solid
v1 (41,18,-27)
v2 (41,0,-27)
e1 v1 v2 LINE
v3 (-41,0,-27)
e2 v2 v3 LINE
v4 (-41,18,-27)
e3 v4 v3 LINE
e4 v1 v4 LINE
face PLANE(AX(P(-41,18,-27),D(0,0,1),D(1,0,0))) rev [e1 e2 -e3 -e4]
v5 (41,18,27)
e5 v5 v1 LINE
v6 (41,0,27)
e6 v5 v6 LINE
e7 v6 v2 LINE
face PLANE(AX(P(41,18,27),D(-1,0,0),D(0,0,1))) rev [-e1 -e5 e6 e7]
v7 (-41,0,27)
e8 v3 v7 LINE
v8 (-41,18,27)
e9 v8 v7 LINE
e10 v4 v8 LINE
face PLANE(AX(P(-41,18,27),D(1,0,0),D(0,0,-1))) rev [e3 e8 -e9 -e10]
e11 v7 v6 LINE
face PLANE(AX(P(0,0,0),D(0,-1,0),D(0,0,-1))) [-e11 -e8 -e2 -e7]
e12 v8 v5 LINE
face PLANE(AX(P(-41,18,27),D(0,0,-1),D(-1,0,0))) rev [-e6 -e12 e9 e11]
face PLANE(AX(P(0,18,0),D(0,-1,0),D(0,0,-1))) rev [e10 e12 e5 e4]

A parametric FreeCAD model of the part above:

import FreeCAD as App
import Part
import Sketcher
from FreeCAD import Vector
Q = App.Units.Quantity


def add_polygon(sketch, points):
    """Adds a closed chain of lines whose ends are joined by coincident constraints."""
    first, n = sketch.GeometryCount, len(points)
    for a, b in zip(points, points[1:] + points[:1]):
        sketch.addGeometry(Part.LineSegment(App.Vector(*a, 0), App.Vector(*b, 0)), False)
    for i in range(n):
        sketch.addConstraint(Sketcher.Constraint("Coincident", first + i, 2, first + (i + 1) % n, 1))

doc = App.newDocument("Part")
body = doc.addObject("PartDesign::Body", "Body")

sketch1 = body.newObject("Sketcher::SketchObject", "Sketch")
sketch1.AttachmentSupport = (doc.getObject("XZ_Plane"), [""])
sketch1.MapMode = "FlatFace"
add_polygon(sketch1, [(-41, -27), (-41, 27), (41, 27), (41, -27)])
sketch1.addConstraint(Sketcher.Constraint("Vertical", 0))
sketch1.addConstraint(Sketcher.Constraint("Horizontal", 1))
sketch1.addConstraint(Sketcher.Constraint("Vertical", 2))
sketch1.addConstraint(Sketcher.Constraint("Horizontal", 3))
sketch1.addConstraint(Sketcher.Constraint("Symmetric", 0, 2, 2, 2, -1, 1))
sketch1.addConstraint(Sketcher.Constraint("DistanceX", 1, 1, 1, 2, Q("82 mm")))
sketch1.addConstraint(Sketcher.Constraint("DistanceY", 0, 1, 0, 2, Q("54 mm")))
pad1 = body.newObject("PartDesign::Pad", "Pad")
pad1.Profile = sketch1
pad1.Length = 18
pad1.Reversed = True

doc.recompute()
